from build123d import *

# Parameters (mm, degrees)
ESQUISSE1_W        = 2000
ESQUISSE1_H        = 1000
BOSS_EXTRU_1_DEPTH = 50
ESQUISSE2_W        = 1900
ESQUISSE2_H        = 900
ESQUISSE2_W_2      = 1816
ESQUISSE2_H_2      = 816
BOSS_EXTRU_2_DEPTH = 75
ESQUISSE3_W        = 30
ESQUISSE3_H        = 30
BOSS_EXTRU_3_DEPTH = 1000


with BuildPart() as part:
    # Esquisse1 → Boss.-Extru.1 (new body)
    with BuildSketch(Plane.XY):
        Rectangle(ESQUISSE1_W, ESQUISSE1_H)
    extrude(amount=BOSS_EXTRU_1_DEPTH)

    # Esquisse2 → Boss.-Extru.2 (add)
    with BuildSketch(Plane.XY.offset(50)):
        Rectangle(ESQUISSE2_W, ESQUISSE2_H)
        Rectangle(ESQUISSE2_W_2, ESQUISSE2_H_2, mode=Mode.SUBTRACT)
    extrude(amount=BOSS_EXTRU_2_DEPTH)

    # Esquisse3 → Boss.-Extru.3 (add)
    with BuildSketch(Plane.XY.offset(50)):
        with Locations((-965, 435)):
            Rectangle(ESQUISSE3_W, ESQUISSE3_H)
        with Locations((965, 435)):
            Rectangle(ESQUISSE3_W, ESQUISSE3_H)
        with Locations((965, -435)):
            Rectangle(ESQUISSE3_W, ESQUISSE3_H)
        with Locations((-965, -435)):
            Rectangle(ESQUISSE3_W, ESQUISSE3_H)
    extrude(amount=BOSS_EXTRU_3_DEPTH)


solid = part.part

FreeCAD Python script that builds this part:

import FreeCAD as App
import Part
import Sketcher

V = App.Vector
Q = App.Units.Quantity


def add_polygon(sketch, points):
    """Adds a closed chain of lines whose ends are joined by coincident constraints."""
    first, n = sketch.GeometryCount, len(points)
    for a, b in zip(points, points[1:] + points[:1]):
        sketch.addGeometry(Part.LineSegment(App.Vector(*a, 0), App.Vector(*b, 0)), False)
    for i in range(n):
        sketch.addConstraint(Sketcher.Constraint("Coincident", first + i, 2, first + (i + 1) % n, 1))

doc = App.newDocument("Part")
body = doc.addObject("PartDesign::Body", "Body")

sketch1 = body.newObject("Sketcher::SketchObject", "Sketch")
sketch1.AttachmentSupport = (doc.getObject("XY_Plane"), [""])
sketch1.MapMode = "FlatFace"
add_polygon(sketch1, [(-1000, 500), (-1000, -500), (1000, -500), (1000, 500)])
sketch1.addConstraint(Sketcher.Constraint("Vertical", 0))
sketch1.addConstraint(Sketcher.Constraint("Horizontal", 1))
sketch1.addConstraint(Sketcher.Constraint("Vertical", 2))
sketch1.addConstraint(Sketcher.Constraint("Horizontal", 3))
sketch1.addConstraint(Sketcher.Constraint("Symmetric", 0, 2, 2, 2, -1, 1))
sketch1.addConstraint(Sketcher.Constraint("DistanceX", 1, 1, 1, 2, Q("2000 mm")))
sketch1.addConstraint(Sketcher.Constraint("DistanceY", 0, 2, 0, 1, Q("1000 mm")))
pad1 = body.newObject("PartDesign::Pad", "Pad")
pad1.Profile = sketch1
pad1.Length = 50

sketch2 = body.newObject("Sketcher::SketchObject", "Sketch001")
sketch2.AttachmentSupport = (doc.getObject("XY_Plane"), [""])
sketch2.MapMode = "FlatFace"
sketch2.AttachmentOffset = App.Placement(V(0, 0, 50), App.Rotation())
add_polygon(sketch2, [(-950, 450), (-950, -450), (950, -450), (950, 450)])
add_polygon(sketch2, [(908, -408), (-908, -408), (-908, 408), (908, 408)])
sketch2.addConstraint(Sketcher.Constraint("Vertical", 0))
sketch2.addConstraint(Sketcher.Constraint("Horizontal", 1))
sketch2.addConstraint(Sketcher.Constraint("Vertical", 2))
sketch2.addConstraint(Sketcher.Constraint("Horizontal", 3))
sketch2.addConstraint(Sketcher.Constraint("Horizontal", 4))
sketch2.addConstraint(Sketcher.Constraint("Vertical", 5))
sketch2.addConstraint(Sketcher.Constraint("Horizontal", 6))
sketch2.addConstraint(Sketcher.Constraint("Vertical", 7))
sketch2.addConstraint(Sketcher.Constraint("Symmetric", 0, 2, 2, 2, -1, 1))
sketch2.addConstraint(Sketcher.Constraint("Symmetric", 4, 2, 6, 2, -1, 1))
sketch2.addConstraint(Sketcher.Constraint("DistanceX", 1, 1, 1, 2, Q("1900 mm")))
sketch2.addConstraint(Sketcher.Constraint("DistanceX", 4, 2, 4, 1, Q("1816 mm")))
sketch2.addConstraint(Sketcher.Constraint("DistanceY", 0, 2, 0, 1, Q("900 mm")))
sketch2.addConstraint(Sketcher.Constraint("DistanceY", 5, 1, 5, 2, Q("816 mm")))
pad2 = body.newObject("PartDesign::Pad", "Pad001")
pad2.Profile = sketch2
pad2.Length = 75

sketch3 = body.newObject("Sketcher::SketchObject", "Sketch002")
sketch3.AttachmentSupport = (doc.getObject("XY_Plane"), [""])
sketch3.MapMode = "FlatFace"
sketch3.AttachmentOffset = App.Placement(V(0, 0, 50), App.Rotation())
add_polygon(sketch3, [(-980, 450), (-980, 420), (-950, 420), (-950, 450)])
add_polygon(sketch3, [(950, 450), (950, 420), (980, 420), (980, 450)])
add_polygon(sketch3, [(950, -420), (950, -450), (980, -450), (980, -420)])
add_polygon(sketch3, [(-980, -420), (-980, -450), (-950, -450), (-950, -420)])
sketch3.addConstraint(Sketcher.Constraint("Vertical", 0))
sketch3.addConstraint(Sketcher.Constraint("Horizontal", 1))
sketch3.addConstraint(Sketcher.Constraint("Vertical", 2))
sketch3.addConstraint(Sketcher.Constraint("Horizontal", 3))
sketch3.addConstraint(Sketcher.Constraint("Vertical", 4))
sketch3.addConstraint(Sketcher.Constraint("Horizontal", 5))
sketch3.addConstraint(Sketcher.Constraint("Vertical", 6))
sketch3.addConstraint(Sketcher.Constraint("Horizontal", 7))
sketch3.addConstraint(Sketcher.Constraint("Vertical", 8))
sketch3.addConstraint(Sketcher.Constraint("Horizontal", 9))
sketch3.addConstraint(Sketcher.Constraint("Vertical", 10))
sketch3.addConstraint(Sketcher.Constraint("Horizontal", 11))
sketch3.addConstraint(Sketcher.Constraint("Vertical", 12))
sketch3.addConstraint(Sketcher.Constraint("Horizontal", 13))
sketch3.addConstraint(Sketcher.Constraint("Vertical", 14))
sketch3.addConstraint(Sketcher.Constraint("Horizontal", 15))
sketch3.addConstraint(Sketcher.Constraint("Symmetric", 2, 2, 8, 2, -1, 1))
sketch3.addConstraint(Sketcher.Constraint("Symmetric", 0, 2, 10, 2, -1, 1))
sketch3.addConstraint(Sketcher.Constraint("Symmetric", 6, 2, 12, 2, -1, 1))
sketch3.addConstraint(Sketcher.Constraint("Symmetric", 4, 2, 14, 2, -1, 1))
sketch3.addConstraint(Sketcher.Constraint("Symmetric", 1, 2, 4, 2, -2))
sketch3.addConstraint(Sketcher.Constraint("Symmetric", 3, 2, 6, 2, -2))
sketch3.addConstraint(Sketcher.Constraint("Equal", 15, 0))
sketch3.addConstraint(Sketcher.Constraint("DistanceX", 1, 1, 1, 2, Q("30 mm")))
sketch3.addConstraint(Sketcher.Constraint("DistanceX", 0, 2, -1, 1, Q("980 mm")))
sketch3.addConstraint(Sketcher.Constraint("DistanceY", -1, 1, 0, 2, Q("420 mm")))
pad3 = body.newObject("PartDesign::Pad", "Pad002")
pad3.Profile = sketch3
pad3.Length = 1000

doc.recompute()
